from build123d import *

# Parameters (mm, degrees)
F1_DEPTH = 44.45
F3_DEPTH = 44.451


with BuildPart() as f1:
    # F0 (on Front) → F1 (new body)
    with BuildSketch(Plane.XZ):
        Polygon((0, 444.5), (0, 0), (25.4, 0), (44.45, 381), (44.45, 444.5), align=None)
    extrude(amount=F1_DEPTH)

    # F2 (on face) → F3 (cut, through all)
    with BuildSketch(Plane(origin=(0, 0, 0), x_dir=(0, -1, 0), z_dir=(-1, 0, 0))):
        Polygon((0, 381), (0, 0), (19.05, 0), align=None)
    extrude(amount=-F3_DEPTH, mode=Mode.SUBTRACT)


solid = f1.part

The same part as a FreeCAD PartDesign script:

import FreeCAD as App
import Part
import Sketcher

V = App.Vector
Q = App.Units.Quantity

doc = App.newDocument("Part")
body = doc.addObject("PartDesign::Body", "Body")

sketch1 = doc.addObject("Sketcher::SketchObject", "Sketch")
body.addObject(sketch1)
sketch1.AttachmentSupport = (doc.XZ_Plane, [""])
sketch1.MapMode = "FlatFace"
sketch1.addGeometry(Part.LineSegment(V(0, 444, 0), V(0, 0, 0)), False)
sketch1.addGeometry(Part.LineSegment(V(0, 0, 0), V(25, 0, 0)), False)
sketch1.addGeometry(Part.LineSegment(V(25, 0, 0), V(44, 381, 0)), False)
sketch1.addGeometry(Part.LineSegment(V(44, 381, 0), V(44, 444, 0)), False)
sketch1.addGeometry(Part.LineSegment(V(44, 444, 0), V(0, 444, 0)), False)
sketch1.addConstraint(Sketcher.Constraint("Coincident", 0, 2, 1, 1))
sketch1.addConstraint(Sketcher.Constraint("Coincident", 1, 2, 2, 1))
sketch1.addConstraint(Sketcher.Constraint("Coincident", 2, 2, 3, 1))
sketch1.addConstraint(Sketcher.Constraint("Coincident", 3, 2, 4, 1))
sketch1.addConstraint(Sketcher.Constraint("Coincident", 4, 2, 0, 1))
sketch1.addConstraint(Sketcher.Constraint("Vertical", 0))
sketch1.addConstraint(Sketcher.Constraint("Horizontal", 1))
sketch1.addConstraint(Sketcher.Constraint("Vertical", 3))
sketch1.addConstraint(Sketcher.Constraint("Horizontal", 4))
sketch1.addConstraint(Sketcher.Constraint("Coincident", 0, 2, -1, 1))
sketch1.addConstraint(Sketcher.Constraint("DistanceX", 1, 1, 1, 2, Q("1 in")))
sketch1.addConstraint(Sketcher.Constraint("DistanceY", 0, 2, 0, 1, Q("17.5 in")))
sketch1.addConstraint(Sketcher.Constraint("DistanceY", 3, 1, 3, 2, Q("2.5 in")))
sketch1.addConstraint(Sketcher.Constraint("DistanceX", 4, 2, 4, 1, Q("1.75 in")))
pad1 = doc.addObject("PartDesign::Pad", "Pad")
body.addObject(pad1)
pad1.Profile = sketch1
pad1.Length = Q("1.75 in")

sketch2 = doc.addObject("Sketcher::SketchObject", "Sketch001")
body.addObject(sketch2)
sketch2.AttachmentSupport = (doc.YZ_Plane, [""])
sketch2.MapMode = "FlatFace"
sketch2.addGeometry(Part.LineSegment(V(0, 381, 0), V(0, 0, 0)), False)
sketch2.addGeometry(Part.LineSegment(V(0, 0, 0), V(-19, 0, 0)), False)
sketch2.addGeometry(Part.LineSegment(V(-19, 0, 0), V(0, 381, 0)), False)
sketch2.addConstraint(Sketcher.Constraint("Coincident", 0, 2, 1, 1))
sketch2.addConstraint(Sketcher.Constraint("Coincident", 1, 2, 2, 1))
sketch2.addConstraint(Sketcher.Constraint("Coincident", 2, 2, 0, 1))
sketch2.addConstraint(Sketcher.Constraint("Vertical", 0))
sketch2.addConstraint(Sketcher.Constraint("Horizontal", 1))
sketch2.addConstraint(Sketcher.Constraint("Coincident", 0, 2, -1, 1))
sketch2.addConstraint(Sketcher.Constraint("DistanceY", 0, 2, 0, 1, Q("15 in")))
sketch2.addConstraint(Sketcher.Constraint("DistanceX", 1, 2, 1, 1, Q("0.75 in")))
pocket1 = doc.addObject("PartDesign::Pocket", "Pocket")
body.addObject(pocket1)
pocket1.Profile = sketch2
pocket1.Type = "ThroughAll"
pocket1.Reversed = True

doc.recompute()
